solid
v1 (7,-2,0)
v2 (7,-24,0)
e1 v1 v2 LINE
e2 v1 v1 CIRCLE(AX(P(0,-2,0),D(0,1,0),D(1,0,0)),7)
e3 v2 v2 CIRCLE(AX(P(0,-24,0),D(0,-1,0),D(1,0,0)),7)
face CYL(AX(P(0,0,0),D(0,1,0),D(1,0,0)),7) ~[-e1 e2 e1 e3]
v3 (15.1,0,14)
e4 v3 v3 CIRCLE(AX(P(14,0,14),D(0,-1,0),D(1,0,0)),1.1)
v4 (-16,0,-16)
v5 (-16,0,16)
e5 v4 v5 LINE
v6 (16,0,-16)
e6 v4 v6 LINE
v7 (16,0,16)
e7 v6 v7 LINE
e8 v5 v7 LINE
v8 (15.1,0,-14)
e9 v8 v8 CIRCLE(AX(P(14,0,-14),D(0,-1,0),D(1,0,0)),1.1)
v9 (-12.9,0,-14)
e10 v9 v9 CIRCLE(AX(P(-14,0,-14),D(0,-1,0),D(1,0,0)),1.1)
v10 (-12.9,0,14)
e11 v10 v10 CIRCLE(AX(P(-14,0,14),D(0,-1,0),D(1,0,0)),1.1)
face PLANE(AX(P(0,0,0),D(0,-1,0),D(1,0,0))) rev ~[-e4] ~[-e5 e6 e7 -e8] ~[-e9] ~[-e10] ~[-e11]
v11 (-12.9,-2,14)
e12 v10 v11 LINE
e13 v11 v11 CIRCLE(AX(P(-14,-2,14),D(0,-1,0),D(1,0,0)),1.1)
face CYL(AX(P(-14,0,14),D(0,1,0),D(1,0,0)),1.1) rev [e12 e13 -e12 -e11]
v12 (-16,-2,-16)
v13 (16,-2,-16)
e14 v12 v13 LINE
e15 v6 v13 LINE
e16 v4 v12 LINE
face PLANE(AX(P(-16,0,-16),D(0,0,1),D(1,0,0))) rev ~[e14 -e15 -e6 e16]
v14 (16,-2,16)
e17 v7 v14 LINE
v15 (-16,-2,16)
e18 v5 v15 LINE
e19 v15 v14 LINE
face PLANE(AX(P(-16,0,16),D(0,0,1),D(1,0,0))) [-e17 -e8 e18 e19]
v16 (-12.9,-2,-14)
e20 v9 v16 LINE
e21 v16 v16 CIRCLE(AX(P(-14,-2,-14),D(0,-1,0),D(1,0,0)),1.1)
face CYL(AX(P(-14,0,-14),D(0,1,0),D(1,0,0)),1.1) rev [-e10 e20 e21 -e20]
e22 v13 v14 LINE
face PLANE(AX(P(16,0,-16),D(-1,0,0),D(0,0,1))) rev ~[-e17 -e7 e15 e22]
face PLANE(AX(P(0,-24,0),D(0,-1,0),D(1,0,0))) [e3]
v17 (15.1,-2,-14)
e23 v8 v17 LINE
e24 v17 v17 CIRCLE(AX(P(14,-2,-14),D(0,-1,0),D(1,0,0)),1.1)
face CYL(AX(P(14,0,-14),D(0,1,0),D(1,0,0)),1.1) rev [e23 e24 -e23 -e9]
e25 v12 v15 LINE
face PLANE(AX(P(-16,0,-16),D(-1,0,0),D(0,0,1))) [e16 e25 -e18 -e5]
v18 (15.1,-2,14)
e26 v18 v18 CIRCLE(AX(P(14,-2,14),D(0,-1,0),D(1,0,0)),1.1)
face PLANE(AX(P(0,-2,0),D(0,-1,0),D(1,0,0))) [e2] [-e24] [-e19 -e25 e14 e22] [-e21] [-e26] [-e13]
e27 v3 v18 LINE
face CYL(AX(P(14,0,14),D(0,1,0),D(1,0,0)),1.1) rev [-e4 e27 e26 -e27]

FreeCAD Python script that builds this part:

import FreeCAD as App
import Part
import Sketcher

V = App.Vector
Q = App.Units.Quantity


def add_polygon(sketch, points):
    """Adds a closed chain of lines whose ends are joined by coincident constraints."""
    first, n = sketch.GeometryCount, len(points)
    for a, b in zip(points, points[1:] + points[:1]):
        sketch.addGeometry(Part.LineSegment(App.Vector(*a, 0), App.Vector(*b, 0)), False)
    for i in range(n):
        sketch.addConstraint(Sketcher.Constraint("Coincident", first + i, 2, first + (i + 1) % n, 1))

doc = App.newDocument("Part")
body = doc.addObject("PartDesign::Body", "Body")

sketch1 = body.newObject("Sketcher::SketchObject", "Sketch")
sketch1.AttachmentSupport = (doc.getObject("XZ_Plane"), [""])
sketch1.MapMode = "FlatFace"
add_polygon(sketch1, [(-16, 16), (-16, -16), (16, -16), (16, 16)])
sketch1.addGeometry(Part.Circle(V(-14, -14, 0), V(0, 0, 1), 1.1), False)
sketch1.addGeometry(Part.Circle(V(14, -14, 0), V(0, 0, 1), 1.1), False)
sketch1.addGeometry(Part.Circle(V(-14, 14, 0), V(0, 0, 1), 1.1), False)
sketch1.addGeometry(Part.Circle(V(14, 14, 0), V(0, 0, 1), 1.1), False)
sketch1.addConstraint([
    Sketcher.Constraint("Vertical", 0),
    Sketcher.Constraint("Horizontal", 1),
    Sketcher.Constraint("Vertical", 2),
    Sketcher.Constraint("Horizontal", 3),
    Sketcher.Constraint("Equal", 4, 5),
    Sketcher.Constraint("Equal", 5, 6),
    Sketcher.Constraint("Equal", 6, 7),
    Sketcher.Constraint("Symmetric", 5, 3, 6, 3, -1, 1),
    Sketcher.Constraint("Symmetric", 4, 3, 7, 3, -1, 1),
    Sketcher.Constraint("Symmetric", 0, 2, 2, 2, -1, 1),
    Sketcher.Constraint("Symmetric", 4, 3, 5, 3, -2),
    Sketcher.Constraint("Equal", 3, 0),
    Sketcher.Constraint("Diameter", 4, Q("2.2 mm")),
    Sketcher.Constraint("DistanceX", 1, 1, 1, 2, Q("32 mm")),
    Sketcher.Constraint("DistanceX", 4, 3, -1, 1, Q("14 mm")),
    Sketcher.Constraint("DistanceY", 4, 3, -1, 1, Q("14 mm")),
])
pad1 = body.newObject("PartDesign::Pad", "Pad")
pad1.Profile = sketch1
pad1.Length = 2

sketch2 = body.newObject("Sketcher::SketchObject", "Sketch001")
sketch2.AttachmentSupport = (doc.getObject("XZ_Plane"), [""])
sketch2.MapMode = "FlatFace"
sketch2.addGeometry(Part.Circle(V(0, 0, 0), V(0, 0, 1), 7), False)
sketch2.addConstraint([
    Sketcher.Constraint("Coincident", 0, 3, -1, 1),
    Sketcher.Constraint("Diameter", 0, Q("14 mm")),
])
pad2 = body.newObject("PartDesign::Pad", "Pad001")
pad2.Profile = sketch2
pad2.Length = 24

doc.recompute()
